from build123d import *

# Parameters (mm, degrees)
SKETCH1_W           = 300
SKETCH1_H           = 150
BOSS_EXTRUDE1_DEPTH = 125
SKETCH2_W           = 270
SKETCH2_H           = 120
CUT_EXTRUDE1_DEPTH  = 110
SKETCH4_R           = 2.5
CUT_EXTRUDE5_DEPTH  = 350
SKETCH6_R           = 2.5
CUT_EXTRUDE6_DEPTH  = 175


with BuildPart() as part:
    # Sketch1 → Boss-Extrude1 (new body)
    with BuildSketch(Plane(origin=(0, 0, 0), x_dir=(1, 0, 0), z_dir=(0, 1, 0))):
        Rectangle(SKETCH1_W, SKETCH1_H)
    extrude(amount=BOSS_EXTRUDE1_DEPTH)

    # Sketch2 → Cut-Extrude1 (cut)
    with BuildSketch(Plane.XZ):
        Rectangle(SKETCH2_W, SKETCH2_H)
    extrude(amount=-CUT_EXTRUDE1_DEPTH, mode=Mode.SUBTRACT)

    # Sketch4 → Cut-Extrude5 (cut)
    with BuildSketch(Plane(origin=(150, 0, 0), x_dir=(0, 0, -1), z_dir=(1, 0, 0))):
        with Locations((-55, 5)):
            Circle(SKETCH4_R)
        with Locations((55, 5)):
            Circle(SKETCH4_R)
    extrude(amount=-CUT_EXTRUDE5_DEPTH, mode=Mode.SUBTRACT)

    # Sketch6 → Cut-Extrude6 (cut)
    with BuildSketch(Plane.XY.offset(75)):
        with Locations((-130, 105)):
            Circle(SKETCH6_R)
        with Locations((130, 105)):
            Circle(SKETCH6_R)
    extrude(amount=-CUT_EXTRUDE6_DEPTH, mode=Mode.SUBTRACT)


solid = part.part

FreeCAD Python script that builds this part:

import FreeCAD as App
import Part
import Sketcher

V = App.Vector
Q = App.Units.Quantity

doc = App.newDocument("Part")
body = doc.addObject("PartDesign::Body", "Body")

# Sketch on XZ plane
sketch1 = body.newObject("Sketcher::SketchObject", "Sketch")
sketch1.AttachmentSupport = (doc.getObject("XZ_Plane"), [""])
sketch1.MapMode = "FlatFace"
sketch1.addGeometry(Part.LineSegment(V(-150, -75, 0), V(-150, 75, 0)), False)
sketch1.addGeometry(Part.LineSegment(V(-150, 75, 0), V(150, 75, 0)), False)
sketch1.addGeometry(Part.LineSegment(V(150, 75, 0), V(150, -75, 0)), False)
sketch1.addGeometry(Part.LineSegment(V(150, -75, 0), V(-150, -75, 0)), False)
sketch1.addConstraint(Sketcher.Constraint("Coincident", 0, 2, 1, 1))
sketch1.addConstraint(Sketcher.Constraint("Coincident", 1, 2, 2, 1))
sketch1.addConstraint(Sketcher.Constraint("Coincident", 2, 2, 3, 1))
sketch1.addConstraint(Sketcher.Constraint("Coincident", 3, 2, 0, 1))
sketch1.addConstraint(Sketcher.Constraint("Vertical", 0))
sketch1.addConstraint(Sketcher.Constraint("Horizontal", 1))
sketch1.addConstraint(Sketcher.Constraint("Vertical", 2))
sketch1.addConstraint(Sketcher.Constraint("Horizontal", 3))
sketch1.addConstraint(Sketcher.Constraint("Symmetric", 0, 2, 2, 2, -1, 1))
sketch1.addConstraint(Sketcher.Constraint("DistanceX", 1, 1, 1, 2, Q("300 mm")))
sketch1.addConstraint(Sketcher.Constraint("DistanceY", 0, 1, 0, 2, Q("150 mm")))
pad1 = body.newObject("PartDesign::Pad", "Pad")
pad1.Profile = sketch1
pad1.Length = 125
pad1.Reversed = True

# Sketch on XZ plane
sketch2 = body.newObject("Sketcher::SketchObject", "Sketch001")
sketch2.AttachmentSupport = (doc.getObject("XZ_Plane"), [""])
sketch2.MapMode = "FlatFace"
sketch2.addGeometry(Part.LineSegment(V(-135, 60, 0), V(-135, -60, 0)), False)
sketch2.addGeometry(Part.LineSegment(V(-135, -60, 0), V(135, -60, 0)), False)
sketch2.addGeometry(Part.LineSegment(V(135, -60, 0), V(135, 60, 0)), False)
sketch2.addGeometry(Part.LineSegment(V(135, 60, 0), V(-135, 60, 0)), False)
sketch2.addConstraint(Sketcher.Constraint("Coincident", 0, 2, 1, 1))
sketch2.addConstraint(Sketcher.Constraint("Coincident", 1, 2, 2, 1))
sketch2.addConstraint(Sketcher.Constraint("Coincident", 2, 2, 3, 1))
sketch2.addConstraint(Sketcher.Constraint("Coincident", 3, 2, 0, 1))
sketch2.addConstraint(Sketcher.Constraint("Vertical", 0))
sketch2.addConstraint(Sketcher.Constraint("Horizontal", 1))
sketch2.addConstraint(Sketcher.Constraint("Vertical", 2))
sketch2.addConstraint(Sketcher.Constraint("Horizontal", 3))
sketch2.addConstraint(Sketcher.Constraint("Symmetric", 0, 2, 2, 2, -1, 1))
sketch2.addConstraint(Sketcher.Constraint("DistanceX", 1, 1, 1, 2, Q("270 mm")))
sketch2.addConstraint(Sketcher.Constraint("DistanceY", 0, 2, 0, 1, Q("120 mm")))
pocket1 = body.newObject("PartDesign::Pocket", "Pocket")
pocket1.Profile = sketch2
pocket1.Length = 110

# Sketch on YZ plane
sketch3 = body.newObject("Sketcher::SketchObject", "Sketch002")
sketch3.AttachmentSupport = (doc.getObject("YZ_Plane"), [""])
sketch3.MapMode = "FlatFace"
sketch3.AttachmentOffset = App.Placement(V(0, 0, 150), App.Rotation())
sketch3.addGeometry(Part.Circle(V(5, 55, 0), V(0, 0, 1), 2.5), False)
sketch3.addGeometry(Part.Circle(V(5, -55, 0), V(0, 0, 1), 2.5), False)
sketch3.addConstraint(Sketcher.Constraint("Equal", 0, 1))
sketch3.addConstraint(Sketcher.Constraint("Symmetric", 0, 3, 1, 3, -1))
sketch3.addConstraint(Sketcher.Constraint("Diameter", 0, Q("5 mm")))
sketch3.addConstraint(Sketcher.Constraint("DistanceX", -1, 1, 0, 3, Q("5 mm")))
sketch3.addConstraint(Sketcher.Constraint("DistanceY", -1, 1, 0, 3, Q("55 mm")))
pocket2 = body.newObject("PartDesign::Pocket", "Pocket001")
pocket2.Profile = sketch3
pocket2.Length = 350

# Sketch on XY plane
sketch4 = body.newObject("Sketcher::SketchObject", "Sketch003")
sketch4.AttachmentSupport = (doc.getObject("XY_Plane"), [""])
sketch4.MapMode = "FlatFace"
sketch4.AttachmentOffset = App.Placement(V(0, 0, 75), App.Rotation())
sketch4.addGeometry(Part.Circle(V(-130, 105, 0), V(0, 0, 1), 2.5), False)
sketch4.addGeometry(Part.Circle(V(130, 105, 0), V(0, 0, 1), 2.5), False)
sketch4.addConstraint(Sketcher.Constraint("Equal", 0, 1))
sketch4.addConstraint(Sketcher.Constraint("Symmetric", 0, 3, 1, 3, -2))
sketch4.addConstraint(Sketcher.Constraint("Diameter", 0, Q("5 mm")))
sketch4.addConstraint(Sketcher.Constraint("DistanceX", 0, 3, -1, 1, Q("130 mm")))
sketch4.addConstraint(Sketcher.Constraint("DistanceY", -1, 1, 0, 3, Q("105 mm")))
pocket3 = body.newObject("PartDesign::Pocket", "Pocket002")
pocket3.Profile = sketch4
pocket3.Length = 175

doc.recompute()
